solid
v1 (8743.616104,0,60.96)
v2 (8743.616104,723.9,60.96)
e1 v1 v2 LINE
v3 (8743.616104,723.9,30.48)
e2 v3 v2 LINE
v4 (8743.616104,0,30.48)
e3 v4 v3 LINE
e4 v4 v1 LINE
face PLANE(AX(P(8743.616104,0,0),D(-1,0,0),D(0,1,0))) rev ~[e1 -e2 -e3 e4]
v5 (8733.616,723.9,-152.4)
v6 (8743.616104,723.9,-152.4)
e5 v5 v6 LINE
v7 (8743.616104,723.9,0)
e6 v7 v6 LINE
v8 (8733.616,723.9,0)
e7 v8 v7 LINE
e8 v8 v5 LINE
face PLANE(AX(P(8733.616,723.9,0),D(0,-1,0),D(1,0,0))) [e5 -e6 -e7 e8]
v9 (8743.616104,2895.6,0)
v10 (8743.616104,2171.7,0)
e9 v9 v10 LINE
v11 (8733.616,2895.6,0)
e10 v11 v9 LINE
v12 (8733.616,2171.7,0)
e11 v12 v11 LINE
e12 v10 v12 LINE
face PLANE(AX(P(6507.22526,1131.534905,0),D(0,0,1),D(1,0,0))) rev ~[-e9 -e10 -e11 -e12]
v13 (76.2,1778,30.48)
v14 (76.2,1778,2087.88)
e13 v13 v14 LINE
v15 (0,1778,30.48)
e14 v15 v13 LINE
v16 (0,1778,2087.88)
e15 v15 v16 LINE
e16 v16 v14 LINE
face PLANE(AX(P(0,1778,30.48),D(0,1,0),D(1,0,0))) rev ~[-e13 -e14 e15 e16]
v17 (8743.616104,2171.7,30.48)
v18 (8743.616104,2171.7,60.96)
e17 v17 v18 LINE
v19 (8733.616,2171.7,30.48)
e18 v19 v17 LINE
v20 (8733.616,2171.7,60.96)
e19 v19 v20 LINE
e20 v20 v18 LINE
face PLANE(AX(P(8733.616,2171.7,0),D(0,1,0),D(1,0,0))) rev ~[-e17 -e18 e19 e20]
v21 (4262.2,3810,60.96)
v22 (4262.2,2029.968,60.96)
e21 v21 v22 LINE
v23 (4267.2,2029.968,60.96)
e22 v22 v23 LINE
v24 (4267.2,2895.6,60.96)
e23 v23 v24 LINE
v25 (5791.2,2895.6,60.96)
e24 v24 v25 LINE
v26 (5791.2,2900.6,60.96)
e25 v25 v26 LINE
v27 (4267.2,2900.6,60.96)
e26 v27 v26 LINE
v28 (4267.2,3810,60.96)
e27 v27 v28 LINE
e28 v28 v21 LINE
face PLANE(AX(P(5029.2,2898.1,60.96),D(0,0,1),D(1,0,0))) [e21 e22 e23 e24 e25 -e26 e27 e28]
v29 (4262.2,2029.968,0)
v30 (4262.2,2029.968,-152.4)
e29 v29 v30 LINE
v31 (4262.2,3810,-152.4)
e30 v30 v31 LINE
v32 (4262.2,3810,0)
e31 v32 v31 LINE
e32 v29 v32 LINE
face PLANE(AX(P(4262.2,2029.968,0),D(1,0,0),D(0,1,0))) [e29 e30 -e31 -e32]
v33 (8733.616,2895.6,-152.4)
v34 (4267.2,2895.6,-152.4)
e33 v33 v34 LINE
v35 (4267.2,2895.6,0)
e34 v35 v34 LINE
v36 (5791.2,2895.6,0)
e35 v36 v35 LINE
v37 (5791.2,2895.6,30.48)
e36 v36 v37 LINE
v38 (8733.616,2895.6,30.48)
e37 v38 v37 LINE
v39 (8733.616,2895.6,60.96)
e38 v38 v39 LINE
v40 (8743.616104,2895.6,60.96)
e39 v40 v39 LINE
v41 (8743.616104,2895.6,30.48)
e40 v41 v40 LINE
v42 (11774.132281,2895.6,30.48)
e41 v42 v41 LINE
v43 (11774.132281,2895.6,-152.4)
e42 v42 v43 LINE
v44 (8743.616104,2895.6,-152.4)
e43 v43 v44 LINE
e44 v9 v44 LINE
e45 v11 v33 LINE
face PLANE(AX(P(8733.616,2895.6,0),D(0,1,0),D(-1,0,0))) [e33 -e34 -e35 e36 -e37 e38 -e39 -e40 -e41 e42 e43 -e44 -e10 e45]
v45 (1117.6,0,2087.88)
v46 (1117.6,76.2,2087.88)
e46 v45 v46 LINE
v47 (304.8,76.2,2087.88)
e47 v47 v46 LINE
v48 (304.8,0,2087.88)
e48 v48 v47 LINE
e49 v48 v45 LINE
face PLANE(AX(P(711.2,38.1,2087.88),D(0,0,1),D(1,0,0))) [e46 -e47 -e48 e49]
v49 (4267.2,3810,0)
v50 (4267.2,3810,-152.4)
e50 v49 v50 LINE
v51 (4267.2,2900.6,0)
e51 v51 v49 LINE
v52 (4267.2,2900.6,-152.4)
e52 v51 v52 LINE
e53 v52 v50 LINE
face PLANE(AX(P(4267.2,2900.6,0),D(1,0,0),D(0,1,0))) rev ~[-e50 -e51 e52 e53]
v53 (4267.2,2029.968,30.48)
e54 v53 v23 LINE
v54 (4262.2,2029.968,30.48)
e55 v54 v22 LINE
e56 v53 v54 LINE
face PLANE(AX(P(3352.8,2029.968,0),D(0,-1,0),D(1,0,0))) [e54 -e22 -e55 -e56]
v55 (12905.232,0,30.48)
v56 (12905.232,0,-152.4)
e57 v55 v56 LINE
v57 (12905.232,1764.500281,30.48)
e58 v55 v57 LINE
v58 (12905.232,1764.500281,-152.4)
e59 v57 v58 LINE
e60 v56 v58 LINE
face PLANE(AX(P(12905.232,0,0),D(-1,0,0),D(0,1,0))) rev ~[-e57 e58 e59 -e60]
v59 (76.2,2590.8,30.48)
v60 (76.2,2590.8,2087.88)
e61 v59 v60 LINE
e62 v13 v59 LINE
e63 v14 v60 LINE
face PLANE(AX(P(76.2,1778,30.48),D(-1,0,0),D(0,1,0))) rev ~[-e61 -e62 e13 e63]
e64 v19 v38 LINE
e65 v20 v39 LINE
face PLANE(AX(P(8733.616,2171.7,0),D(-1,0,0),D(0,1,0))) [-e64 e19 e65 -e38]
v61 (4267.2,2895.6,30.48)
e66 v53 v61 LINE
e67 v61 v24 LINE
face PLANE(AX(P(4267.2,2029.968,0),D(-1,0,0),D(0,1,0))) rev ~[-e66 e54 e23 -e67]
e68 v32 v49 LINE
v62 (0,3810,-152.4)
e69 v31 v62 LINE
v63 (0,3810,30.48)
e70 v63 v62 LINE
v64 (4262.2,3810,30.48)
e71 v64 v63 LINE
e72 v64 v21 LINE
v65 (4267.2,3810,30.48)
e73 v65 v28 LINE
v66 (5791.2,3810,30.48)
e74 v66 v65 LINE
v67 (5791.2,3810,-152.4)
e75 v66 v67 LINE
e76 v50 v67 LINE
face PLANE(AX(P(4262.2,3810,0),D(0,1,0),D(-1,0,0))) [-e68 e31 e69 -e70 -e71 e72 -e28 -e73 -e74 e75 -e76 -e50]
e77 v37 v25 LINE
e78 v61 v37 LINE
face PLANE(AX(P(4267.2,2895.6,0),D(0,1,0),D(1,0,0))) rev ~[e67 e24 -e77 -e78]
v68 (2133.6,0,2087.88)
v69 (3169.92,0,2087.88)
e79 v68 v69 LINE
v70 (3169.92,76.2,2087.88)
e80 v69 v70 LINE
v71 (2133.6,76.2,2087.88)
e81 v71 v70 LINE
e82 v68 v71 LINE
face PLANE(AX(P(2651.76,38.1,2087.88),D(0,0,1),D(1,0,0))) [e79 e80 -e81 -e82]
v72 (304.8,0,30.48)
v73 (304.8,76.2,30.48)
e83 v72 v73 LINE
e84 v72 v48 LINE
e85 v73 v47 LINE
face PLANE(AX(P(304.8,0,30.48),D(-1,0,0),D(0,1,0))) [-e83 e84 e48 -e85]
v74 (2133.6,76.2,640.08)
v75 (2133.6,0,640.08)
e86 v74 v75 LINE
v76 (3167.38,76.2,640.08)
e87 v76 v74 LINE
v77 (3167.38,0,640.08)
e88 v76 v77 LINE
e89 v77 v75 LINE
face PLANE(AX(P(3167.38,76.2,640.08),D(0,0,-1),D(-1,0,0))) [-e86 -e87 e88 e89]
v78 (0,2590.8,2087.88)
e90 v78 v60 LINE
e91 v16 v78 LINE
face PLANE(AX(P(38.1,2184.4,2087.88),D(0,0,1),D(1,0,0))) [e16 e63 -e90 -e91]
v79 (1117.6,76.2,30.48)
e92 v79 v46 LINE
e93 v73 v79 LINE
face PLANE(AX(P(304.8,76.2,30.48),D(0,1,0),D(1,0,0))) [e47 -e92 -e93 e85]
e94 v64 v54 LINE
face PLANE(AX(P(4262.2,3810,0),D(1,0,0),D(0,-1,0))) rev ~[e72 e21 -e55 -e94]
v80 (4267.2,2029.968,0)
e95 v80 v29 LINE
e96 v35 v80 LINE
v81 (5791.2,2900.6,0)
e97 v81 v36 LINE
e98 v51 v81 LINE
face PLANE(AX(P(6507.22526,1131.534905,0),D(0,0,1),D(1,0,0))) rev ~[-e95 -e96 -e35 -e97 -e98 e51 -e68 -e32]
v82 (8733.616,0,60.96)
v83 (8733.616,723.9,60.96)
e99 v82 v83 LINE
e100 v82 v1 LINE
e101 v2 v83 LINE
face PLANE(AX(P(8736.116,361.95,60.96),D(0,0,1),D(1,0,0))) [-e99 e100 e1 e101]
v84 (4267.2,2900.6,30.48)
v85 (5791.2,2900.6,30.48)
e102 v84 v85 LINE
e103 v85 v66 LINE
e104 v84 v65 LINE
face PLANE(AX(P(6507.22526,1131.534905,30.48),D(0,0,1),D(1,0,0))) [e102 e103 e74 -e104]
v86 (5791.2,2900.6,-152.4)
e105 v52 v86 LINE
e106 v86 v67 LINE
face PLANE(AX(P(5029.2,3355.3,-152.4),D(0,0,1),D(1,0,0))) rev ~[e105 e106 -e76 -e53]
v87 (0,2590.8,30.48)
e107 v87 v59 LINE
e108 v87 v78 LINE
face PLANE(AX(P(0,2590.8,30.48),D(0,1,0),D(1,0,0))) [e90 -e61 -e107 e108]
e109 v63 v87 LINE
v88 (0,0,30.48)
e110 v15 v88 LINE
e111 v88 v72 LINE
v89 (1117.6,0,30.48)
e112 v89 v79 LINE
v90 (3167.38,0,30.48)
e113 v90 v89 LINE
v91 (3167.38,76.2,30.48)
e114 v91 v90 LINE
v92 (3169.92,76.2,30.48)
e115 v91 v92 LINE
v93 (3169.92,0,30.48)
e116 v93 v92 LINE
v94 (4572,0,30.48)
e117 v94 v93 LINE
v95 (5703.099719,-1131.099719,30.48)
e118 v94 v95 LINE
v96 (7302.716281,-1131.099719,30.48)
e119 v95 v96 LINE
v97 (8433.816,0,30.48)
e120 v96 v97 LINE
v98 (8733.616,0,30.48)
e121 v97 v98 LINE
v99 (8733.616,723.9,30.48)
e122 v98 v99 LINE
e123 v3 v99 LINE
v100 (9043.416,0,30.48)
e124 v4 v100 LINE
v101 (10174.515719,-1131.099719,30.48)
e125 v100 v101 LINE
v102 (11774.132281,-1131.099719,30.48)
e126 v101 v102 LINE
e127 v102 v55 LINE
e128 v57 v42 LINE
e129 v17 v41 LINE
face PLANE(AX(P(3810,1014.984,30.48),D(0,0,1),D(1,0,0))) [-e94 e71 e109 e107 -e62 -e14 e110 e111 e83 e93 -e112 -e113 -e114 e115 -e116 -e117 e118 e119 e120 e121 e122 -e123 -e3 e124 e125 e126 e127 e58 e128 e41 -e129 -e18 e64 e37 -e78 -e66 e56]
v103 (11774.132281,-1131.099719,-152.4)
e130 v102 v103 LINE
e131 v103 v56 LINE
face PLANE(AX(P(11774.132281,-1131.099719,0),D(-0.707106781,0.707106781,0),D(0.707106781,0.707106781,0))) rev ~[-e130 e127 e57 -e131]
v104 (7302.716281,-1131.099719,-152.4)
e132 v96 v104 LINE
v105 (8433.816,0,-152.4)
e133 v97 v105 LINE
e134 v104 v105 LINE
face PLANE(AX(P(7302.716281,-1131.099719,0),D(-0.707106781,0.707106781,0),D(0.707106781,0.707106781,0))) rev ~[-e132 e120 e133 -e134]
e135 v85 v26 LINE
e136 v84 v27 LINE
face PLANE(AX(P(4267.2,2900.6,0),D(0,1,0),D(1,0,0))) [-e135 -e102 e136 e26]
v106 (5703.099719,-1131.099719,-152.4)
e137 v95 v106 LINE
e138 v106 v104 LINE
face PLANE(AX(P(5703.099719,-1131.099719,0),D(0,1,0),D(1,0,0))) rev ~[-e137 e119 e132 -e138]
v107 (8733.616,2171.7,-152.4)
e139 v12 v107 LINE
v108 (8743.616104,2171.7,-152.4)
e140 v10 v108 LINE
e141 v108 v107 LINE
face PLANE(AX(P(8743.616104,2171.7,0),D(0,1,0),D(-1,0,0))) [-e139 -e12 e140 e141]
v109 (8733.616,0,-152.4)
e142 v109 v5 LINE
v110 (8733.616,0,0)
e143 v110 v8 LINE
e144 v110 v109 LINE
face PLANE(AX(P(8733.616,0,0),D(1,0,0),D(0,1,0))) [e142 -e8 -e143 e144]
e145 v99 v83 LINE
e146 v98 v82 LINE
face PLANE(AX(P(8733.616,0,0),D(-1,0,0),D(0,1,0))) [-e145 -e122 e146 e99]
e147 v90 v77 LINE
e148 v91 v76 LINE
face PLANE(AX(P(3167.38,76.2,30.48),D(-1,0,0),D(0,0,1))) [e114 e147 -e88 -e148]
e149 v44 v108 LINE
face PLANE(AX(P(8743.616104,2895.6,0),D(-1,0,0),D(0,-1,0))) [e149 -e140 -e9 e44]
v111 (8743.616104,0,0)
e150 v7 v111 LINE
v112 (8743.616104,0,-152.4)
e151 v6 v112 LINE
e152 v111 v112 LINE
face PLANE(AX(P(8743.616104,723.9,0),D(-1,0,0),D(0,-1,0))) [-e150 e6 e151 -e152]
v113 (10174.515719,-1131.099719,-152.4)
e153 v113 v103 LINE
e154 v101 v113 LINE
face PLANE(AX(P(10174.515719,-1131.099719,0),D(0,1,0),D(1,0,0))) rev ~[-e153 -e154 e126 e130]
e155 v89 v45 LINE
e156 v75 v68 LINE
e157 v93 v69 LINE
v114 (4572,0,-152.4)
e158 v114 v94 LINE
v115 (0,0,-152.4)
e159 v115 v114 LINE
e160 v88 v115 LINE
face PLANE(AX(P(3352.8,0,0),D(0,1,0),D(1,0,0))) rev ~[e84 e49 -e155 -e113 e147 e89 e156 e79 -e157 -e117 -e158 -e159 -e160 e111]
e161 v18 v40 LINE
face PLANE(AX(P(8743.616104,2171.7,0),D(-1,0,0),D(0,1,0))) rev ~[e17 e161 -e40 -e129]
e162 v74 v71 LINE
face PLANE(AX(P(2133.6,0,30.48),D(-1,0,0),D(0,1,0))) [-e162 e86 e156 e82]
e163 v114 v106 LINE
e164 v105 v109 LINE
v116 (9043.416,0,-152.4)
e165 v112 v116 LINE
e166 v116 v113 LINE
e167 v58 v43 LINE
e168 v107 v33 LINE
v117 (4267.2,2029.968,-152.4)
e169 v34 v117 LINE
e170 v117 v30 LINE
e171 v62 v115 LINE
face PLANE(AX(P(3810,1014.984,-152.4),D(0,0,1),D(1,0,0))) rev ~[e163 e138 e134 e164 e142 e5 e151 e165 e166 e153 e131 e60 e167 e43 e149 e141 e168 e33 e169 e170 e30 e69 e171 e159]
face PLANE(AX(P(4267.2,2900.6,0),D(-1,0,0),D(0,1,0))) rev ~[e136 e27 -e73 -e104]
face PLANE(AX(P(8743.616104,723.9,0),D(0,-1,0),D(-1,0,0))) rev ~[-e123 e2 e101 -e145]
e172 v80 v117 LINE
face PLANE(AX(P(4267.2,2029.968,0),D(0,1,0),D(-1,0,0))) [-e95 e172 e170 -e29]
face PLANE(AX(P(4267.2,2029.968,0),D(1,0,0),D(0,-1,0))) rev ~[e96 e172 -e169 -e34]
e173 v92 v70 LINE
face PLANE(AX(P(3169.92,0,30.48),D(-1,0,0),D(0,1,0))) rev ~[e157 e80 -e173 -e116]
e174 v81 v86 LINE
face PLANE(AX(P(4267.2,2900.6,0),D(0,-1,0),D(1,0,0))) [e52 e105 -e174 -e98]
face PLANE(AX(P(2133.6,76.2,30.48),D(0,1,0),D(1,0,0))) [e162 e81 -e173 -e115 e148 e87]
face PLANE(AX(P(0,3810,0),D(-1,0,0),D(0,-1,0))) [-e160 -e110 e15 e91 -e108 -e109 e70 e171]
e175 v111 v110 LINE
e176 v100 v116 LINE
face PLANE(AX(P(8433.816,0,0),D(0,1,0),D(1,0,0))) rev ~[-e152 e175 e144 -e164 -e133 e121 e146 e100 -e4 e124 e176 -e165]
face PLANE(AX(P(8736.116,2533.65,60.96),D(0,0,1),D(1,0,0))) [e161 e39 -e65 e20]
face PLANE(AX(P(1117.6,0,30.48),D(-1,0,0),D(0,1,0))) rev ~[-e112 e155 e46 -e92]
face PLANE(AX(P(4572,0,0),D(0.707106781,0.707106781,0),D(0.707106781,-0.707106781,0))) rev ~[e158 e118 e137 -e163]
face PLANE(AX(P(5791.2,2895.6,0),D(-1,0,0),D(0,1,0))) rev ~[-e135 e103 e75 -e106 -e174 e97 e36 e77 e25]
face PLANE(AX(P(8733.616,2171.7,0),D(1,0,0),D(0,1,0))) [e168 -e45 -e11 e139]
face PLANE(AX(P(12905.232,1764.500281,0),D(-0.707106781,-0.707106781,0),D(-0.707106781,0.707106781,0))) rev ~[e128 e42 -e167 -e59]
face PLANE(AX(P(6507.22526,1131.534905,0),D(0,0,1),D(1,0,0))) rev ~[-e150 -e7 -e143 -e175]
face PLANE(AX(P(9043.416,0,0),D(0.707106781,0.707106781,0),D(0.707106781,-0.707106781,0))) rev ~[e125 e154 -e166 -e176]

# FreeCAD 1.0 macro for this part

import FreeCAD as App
import Part
import Sketcher

V = App.Vector
Q = App.Units.Quantity


def add_polygon(sketch, points):
    """Adds a closed chain of lines whose ends are joined by coincident constraints."""
    first, n = sketch.GeometryCount, len(points)
    for a, b in zip(points, points[1:] + points[:1]):
        sketch.addGeometry(Part.LineSegment(App.Vector(*a, 0), App.Vector(*b, 0)), False)
    for i in range(n):
        sketch.addConstraint(Sketcher.Constraint("Coincident", first + i, 2, first + (i + 1) % n, 1))

doc = App.newDocument("Part")
params = doc.addObject("Spreadsheet::Sheet", "Params")
for row, (alias, value) in enumerate([
    ("sketch1_width", "60 in"),
    ("sketch1_height", "70.08 in"),
    ("pad1_length", "2.4 in"),
    ("sketch2_height", "28.5 in"),
    ("pad2_length", "2.4 in"),
    ("sketch3_height", "28.5 in"),
    ("pad3_length", "2.4 in"),
    ("sketch4_width", "12 in"),
    ("sketch4_width2", "24 in"),
    ("sketch4_width3", "228 in"),
    ("sketch4_width4", "132 in"),
    ("sketch4_width5", "36 in"),
    ("pad4_length", "1.2 in"),
    ("sketch5_width", "3 in"),
    ("sketch5_width2", "32 in"),
    ("sketch5_width3", "40.8 in"),
    ("pad5_length", "81 in"),
    ("sketch6_height", "24 in"),
    ("sketch6_width", "40.7 in"),
    ("sketch7_width", "132 in"),
    ("sketch7_width2", "12 in"),
    ("sketch7_width3", "60 in"),
    ("sketch7_height", "150 in"),
    ("sketch7_height2", "114 in"),
    ("pad6_length", "6 in"),
    ("sketch8_width", "36 in"),
    ("sketch8_height", "79.92 in"),
    ("pad7_length", "6 in"),
    ("pad7_length2", "1.2 in"),
], start=1):
    params.set(f"A{row}", alias)
    params.set(f"B{row}", "=" + value)
    params.setAlias(f"B{row}", alias)

body = doc.addObject("PartDesign::Body", "Body")

# Sketch on XY plane
sketch1 = body.newObject("Sketcher::SketchObject", "Sketch")
sketch1.AttachmentSupport = (doc.getObject("XY_Plane"), [""])
sketch1.MapMode = "FlatFace"
add_polygon(sketch1, [(4267, 2896), (5791, 2896), (5791, 2901), (4267, 2901), (4267, 3810), (4262, 3810), (4262, 2030), (4267, 2030)])  # lines 0-7
sketch1.addConstraint(Sketcher.Constraint("Horizontal", 0))
sketch1.addConstraint(Sketcher.Constraint("Vertical", 1))
sketch1.addConstraint(Sketcher.Constraint("Horizontal", 2))
sketch1.addConstraint(Sketcher.Constraint("Vertical", 3))
sketch1.addConstraint(Sketcher.Constraint("Horizontal", 4))
sketch1.addConstraint(Sketcher.Constraint("Vertical", 5))
sketch1.addConstraint(Sketcher.Constraint("Horizontal", 6))
sketch1.addConstraint(Sketcher.Constraint("Vertical", 7))
sketch1.addConstraint(Sketcher.Constraint("Vertical", 3, 2, 6, 2))
sketch1.addConstraint(Sketcher.Constraint("Equal", 6, 1))
sketch1.addConstraint(Sketcher.Constraint("DistanceX", 0, 1, 0, 2, Q("60 in")))
sketch1.addConstraint(Sketcher.Constraint("DistanceX", -1, 1, 0, 2, Q("228 in")))
sketch1.addConstraint(Sketcher.Constraint("DistanceY", -1, 1, 0, 2, Q("114 in")))
sketch1.addConstraint(Sketcher.Constraint("DistanceY", -1, 1, 3, 2, Q("150 in")))
sketch1.addConstraint(Sketcher.Constraint("DistanceY", 5, 2, 5, 1, Q("70.08 in")))
sketch1.addConstraint(Sketcher.Constraint("DistanceX", 4, 2, 4, 1, 5.0))
sketch1.setExpression("Constraints[18]", "Params.sketch1_width")
sketch1.setExpression("Constraints[22]", "Params.sketch1_height")
pad1 = body.newObject("PartDesign::Pad", "Pad")
pad1.Profile = sketch1
pad1.setExpression("Length", "Params.pad1_length")
body2 = doc.addObject("PartDesign::Body", "Body001")

# Sketch on XY plane
sketch2 = body2.newObject("Sketcher::SketchObject", "Sketch001")
sketch2.AttachmentSupport = (doc.getObject("XY_Plane001"), [""])
sketch2.MapMode = "FlatFace"
add_polygon(sketch2, [(8734, 2896), (8734, 2172), (8744, 2172), (8744, 2896)])  # lines 0-3
sketch2.addConstraint(Sketcher.Constraint("Vertical", 0))
sketch2.addConstraint(Sketcher.Constraint("Horizontal", 1))
sketch2.addConstraint(Sketcher.Constraint("Vertical", 2))
sketch2.addConstraint(Sketcher.Constraint("Horizontal", 3))
sketch2.addConstraint(Sketcher.Constraint("DistanceY", 0, 2, 0, 1, Q("28.5 in")))
sketch2.addConstraint(Sketcher.Constraint("DistanceY", -1, 1, 2, 2, Q("114 in")))
sketch2.addConstraint(Sketcher.Constraint("DistanceX", -1, 1, 0, 2, 8733.616))
sketch2.addConstraint(Sketcher.Constraint("DistanceX", 1, 1, 1, 2, 10.000104))
sketch2.setExpression("Constraints[8]", "Params.sketch2_height")
pad2 = body2.newObject("PartDesign::Pad", "Pad001")
pad2.Profile = sketch2
pad2.setExpression("Length", "Params.pad2_length")
body3 = doc.addObject("PartDesign::Body", "Body002")

# Sketch on XY plane
sketch3 = body3.newObject("Sketcher::SketchObject", "Sketch002")
sketch3.AttachmentSupport = (doc.getObject("XY_Plane002"), [""])
sketch3.MapMode = "FlatFace"
add_polygon(sketch3, [(8734, 724), (8734, 0), (8744, 0), (8744, 724)])  # lines 0-3
sketch3.addConstraint(Sketcher.Constraint("Vertical", 0))
sketch3.addConstraint(Sketcher.Constraint("Horizontal", 1))
sketch3.addConstraint(Sketcher.Constraint("Vertical", 2))
sketch3.addConstraint(Sketcher.Constraint("Horizontal", 3))
sketch3.addConstraint(Sketcher.Constraint("PointOnObject", 0, 2, -1))
sketch3.addConstraint(Sketcher.Constraint("DistanceY", 0, 2, 0, 1, Q("28.5 in")))
sketch3.addConstraint(Sketcher.Constraint("DistanceX", -1, 1, 0, 2, 8733.616))
sketch3.addConstraint(Sketcher.Constraint("DistanceX", 1, 1, 1, 2, 10.000104))
sketch3.setExpression("Constraints[9]", "Params.sketch3_height")
pad3 = body3.newObject("PartDesign::Pad", "Pad002")
pad3.Profile = sketch3
pad3.setExpression("Length", "Params.pad3_length")
body4 = doc.addObject("PartDesign::Body", "Body003")

# Sketch on XY plane
sketch4 = body4.newObject("Sketcher::SketchObject", "Sketch003")
sketch4.AttachmentSupport = (doc.getObject("XY_Plane003"), [""])
sketch4.MapMode = "FlatFace"
add_polygon(sketch4, [(4267, 0), (4572, 0), (5703, -1131), (7303, -1131), (8434, 0), (9043, 0), (10175, -1131), (11774, -1131), (12905, 0), (12905, 1765), (11774, 2896), (5791, 2896), (5791, 3810), (0, 3810), (0, 0), (3353, 0), (3353, 2030), (4267, 2030)])  # lines 0-17
sketch4.addConstraint(Sketcher.Constraint("Horizontal", 0))
sketch4.addConstraint(Sketcher.Constraint("Horizontal", 2))
sketch4.addConstraint(Sketcher.Constraint("Horizontal", 4))
sketch4.addConstraint(Sketcher.Constraint("Horizontal", 6))
sketch4.addConstraint(Sketcher.Constraint("Vertical", 8))
sketch4.addConstraint(Sketcher.Constraint("Horizontal", 10))
sketch4.addConstraint(Sketcher.Constraint("Vertical", 11))
sketch4.addConstraint(Sketcher.Constraint("Horizontal", 12))
sketch4.addConstraint(Sketcher.Constraint("Vertical", 13))
sketch4.addConstraint(Sketcher.Constraint("Horizontal", 14))
sketch4.addConstraint(Sketcher.Constraint("Vertical", 15))
sketch4.addConstraint(Sketcher.Constraint("Horizontal", 16))
sketch4.addConstraint(Sketcher.Constraint("Vertical", 17))
sketch4.addConstraint(Sketcher.Constraint("Coincident", 13, 2, -1, 1))
sketch4.addConstraint(Sketcher.Constraint("PointOnObject", 0, 2, -1))
sketch4.addConstraint(Sketcher.Constraint("PointOnObject", 3, 2, -1))
sketch4.addConstraint(Sketcher.Constraint("PointOnObject", 7, 2, -1))
sketch4.addConstraint(Sketcher.Constraint("Perpendicular", 1, 3))
sketch4.addConstraint(Sketcher.Constraint("Perpendicular", 3, 5))
sketch4.addConstraint(Sketcher.Constraint("Perpendicular", 5, 7))
sketch4.addConstraint(Sketcher.Constraint("Perpendicular", 7, 9))
sketch4.addConstraint(Sketcher.Constraint("Horizontal", 2, 2, 5, 2))
sketch4.addConstraint(Sketcher.Constraint("Vertical", 6, 2, 9, 2))
sketch4.addConstraint(Sketcher.Constraint("Equal", 2, 6))
sketch4.addConstraint(Sketcher.Constraint("Equal", 16, 11))
sketch4.addConstraint(Sketcher.Constraint("Equal", 1, 3))
sketch4.addConstraint(Sketcher.Constraint("DistanceX", 0, 1, 0, 2, Q("12 in")))
sketch4.addConstraint(Sketcher.Constraint("DistanceX", 4, 1, 4, 2, Q("24 in")))
sketch4.addConstraint(Sketcher.Constraint("DistanceX", 12, 2, 12, 1, Q("228 in")))
sketch4.addConstraint(Sketcher.Constraint("DistanceX", 14, 1, 14, 2, Q("132 in")))
sketch4.addConstraint(Sketcher.Constraint("DistanceX", 16, 1, 16, 2, Q("36 in")))
sketch4.addConstraint(Sketcher.Constraint("DistanceY", 13, 2, 13, 1, Q("150 in")))
sketch4.addConstraint(Sketcher.Constraint("DistanceY", 15, 1, 15, 2, Q("79.92 in")))
sketch4.addConstraint(Sketcher.Constraint("DistanceX", -1, 1, 3, 2, Q("332.04 in")))
sketch4.addConstraint(Sketcher.Constraint("DistanceX", 10, 2, 10, 1, 5982.932281))
sketch4.setExpression("Constraints[44]", "Params.sketch4_width")
sketch4.setExpression("Constraints[45]", "Params.sketch4_width2")
sketch4.setExpression("Constraints[46]", "Params.sketch4_width3")
sketch4.setExpression("Constraints[47]", "Params.sketch4_width4")
sketch4.setExpression("Constraints[48]", "Params.sketch4_width5")
pad4 = body4.newObject("PartDesign::Pad", "Pad003")
pad4.Profile = sketch4
pad4.setExpression("Length", "Params.pad4_length")
body.AllowCompound = True
doc.recompute()

boolean = body.newObject("PartDesign::Boolean", "Boolean")
boolean.Type = "Fuse"
boolean.addObjects([body2])
doc.recompute()

boolean2 = body.newObject("PartDesign::Boolean", "Boolean001")
boolean2.Type = "Fuse"
boolean2.addObjects([body3])
doc.recompute()

boolean3 = body.newObject("PartDesign::Boolean", "Boolean002")
boolean3.Type = "Fuse"
boolean3.addObjects([body4])

# Sketch on XY plane
sketch5 = body.newObject("Sketcher::SketchObject", "Sketch004")
sketch5.AttachmentSupport = (doc.getObject("XY_Plane"), [""])
sketch5.MapMode = "FlatFace"
sketch5.AttachmentOffset = App.Placement(V(0, 0, 1.2 * 25.4), App.Rotation())
add_polygon(sketch5, [(0, 2591), (0, 1778), (76, 1778), (76, 2591)])  # lines 0-3
add_polygon(sketch5, [(305, 76), (305, 0), (1118, 0), (1118, 76)])  # lines 4-7
add_polygon(sketch5, [(2134, 76), (2134, 0), (3170, 0), (3170, 76)])  # lines 8-11
sketch5.addConstraint(Sketcher.Constraint("Vertical", 0))
sketch5.addConstraint(Sketcher.Constraint("Horizontal", 1))
sketch5.addConstraint(Sketcher.Constraint("Vertical", 2))
sketch5.addConstraint(Sketcher.Constraint("Horizontal", 3))
sketch5.addConstraint(Sketcher.Constraint("Vertical", 4))
sketch5.addConstraint(Sketcher.Constraint("Horizontal", 5))
sketch5.addConstraint(Sketcher.Constraint("Vertical", 6))
sketch5.addConstraint(Sketcher.Constraint("Horizontal", 7))
sketch5.addConstraint(Sketcher.Constraint("Vertical", 8))
sketch5.addConstraint(Sketcher.Constraint("Horizontal", 9))
sketch5.addConstraint(Sketcher.Constraint("Vertical", 10))
sketch5.addConstraint(Sketcher.Constraint("Horizontal", 11))
sketch5.addConstraint(Sketcher.Constraint("PointOnObject", 0, 2, -2))
sketch5.addConstraint(Sketcher.Constraint("PointOnObject", 4, 2, -1))
sketch5.addConstraint(Sketcher.Constraint("PointOnObject", 8, 2, -1))
sketch5.addConstraint(Sketcher.Constraint("Horizontal", 7, 2, 10, 2))
sketch5.addConstraint(Sketcher.Constraint("Equal", 7, 0))
sketch5.addConstraint(Sketcher.Constraint("Equal", 3, 4))
sketch5.addConstraint(Sketcher.Constraint("DistanceX", 1, 1, 1, 2, Q("3 in")))
sketch5.addConstraint(Sketcher.Constraint("DistanceX", 5, 1, 5, 2, Q("32 in")))
sketch5.addConstraint(Sketcher.Constraint("DistanceX", 9, 1, 9, 2, Q("40.8 in")))
sketch5.addConstraint(Sketcher.Constraint("DistanceY", -1, 1, 0, 2, Q("70 in")))
sketch5.addConstraint(Sketcher.Constraint("DistanceX", -1, 1, 4, 2, Q("12 in")))
sketch5.addConstraint(Sketcher.Constraint("DistanceX", -1, 1, 8, 2, Q("84 in")))
sketch5.setExpression("Constraints[30]", "Params.sketch5_width")
sketch5.setExpression("Constraints[31]", "Params.sketch5_width2")
sketch5.setExpression("Constraints[32]", "Params.sketch5_width3")
pad5 = body.newObject("PartDesign::Pad", "Pad004")
pad5.Profile = sketch5
pad5.setExpression("Length", "Params.pad5_length")

# Sketch on XZ plane
sketch6 = body.newObject("Sketcher::SketchObject", "Sketch005")
sketch6.AttachmentSupport = (doc.getObject("XZ_Plane"), [""])
sketch6.MapMode = "FlatFace"
sketch6.AttachmentOffset = App.Placement(V(0, 0, -3 * 25.4), App.Rotation())
add_polygon(sketch6, [(3167, 640), (3167, 30), (2134, 30), (2134, 640)])  # lines 0-3
sketch6.addConstraint(Sketcher.Constraint("Vertical", 0))
sketch6.addConstraint(Sketcher.Constraint("Horizontal", 1))
sketch6.addConstraint(Sketcher.Constraint("Vertical", 2))
sketch6.addConstraint(Sketcher.Constraint("Horizontal", 3))
sketch6.addConstraint(Sketcher.Constraint("DistanceY", 0, 2, 0, 1, Q("24 in")))
sketch6.addConstraint(Sketcher.Constraint("DistanceX", 1, 2, 1, 1, Q("40.7 in")))
sketch6.addConstraint(Sketcher.Constraint("DistanceX", -1, 1, 1, 2, Q("84 in")))
sketch6.addConstraint(Sketcher.Constraint("DistanceY", -1, 1, 0, 2, Q("1.2 in")))
sketch6.setExpression("Constraints[8]", "Params.sketch6_height")
sketch6.setExpression("Constraints[9]", "Params.sketch6_width")
pocket1 = body.newObject("PartDesign::Pocket", "Pocket")
pocket1.Profile = sketch6
pocket1.Type = "ThroughAll"
pocket1.Reversed = True

# Sketch on XY plane
sketch7 = body.newObject("Sketcher::SketchObject", "Sketch006")
sketch7.AttachmentSupport = (doc.getObject("XY_Plane"), [""])
sketch7.MapMode = "FlatFace"
add_polygon(sketch7, [(0, 0), (3353, 0), (3353, 2030), (4262, 2030), (4262, 3810), (0, 3810)])  # lines 0-5
add_polygon(sketch7, [(4267, 0), (4572, 0), (5703, -1131), (7303, -1131), (8434, 0), (8734, 0), (8734, 724), (8744, 724), (8744, 0), (9043, 0), (10175, -1131), (11774, -1131), (12905, 0), (12905, 1765), (11774, 2896), (8744, 2896), (8744, 2172), (8734, 2172), (8734, 2896), (4267, 2896)])  # lines 6-25
add_polygon(sketch7, [(4267, 3810), (4267, 2901), (5791, 2901), (5791, 3810)])  # lines 26-29
sketch7.addConstraint(Sketcher.Constraint("Horizontal", 0))
sketch7.addConstraint(Sketcher.Constraint("Vertical", 1))
sketch7.addConstraint(Sketcher.Constraint("Horizontal", 2))
sketch7.addConstraint(Sketcher.Constraint("Vertical", 3))
sketch7.addConstraint(Sketcher.Constraint("Horizontal", 4))
sketch7.addConstraint(Sketcher.Constraint("Vertical", 5))
sketch7.addConstraint(Sketcher.Constraint("Horizontal", 6))
sketch7.addConstraint(Sketcher.Constraint("Horizontal", 8))
sketch7.addConstraint(Sketcher.Constraint("Horizontal", 10))
sketch7.addConstraint(Sketcher.Constraint("Vertical", 11))
sketch7.addConstraint(Sketcher.Constraint("Horizontal", 12))
sketch7.addConstraint(Sketcher.Constraint("Vertical", 13))
sketch7.addConstraint(Sketcher.Constraint("Horizontal", 14))
sketch7.addConstraint(Sketcher.Constraint("Horizontal", 16))
sketch7.addConstraint(Sketcher.Constraint("Vertical", 18))
sketch7.addConstraint(Sketcher.Constraint("Horizontal", 20))
sketch7.addConstraint(Sketcher.Constraint("Vertical", 21))
sketch7.addConstraint(Sketcher.Constraint("Horizontal", 22))
sketch7.addConstraint(Sketcher.Constraint("Vertical", 23))
sketch7.addConstraint(Sketcher.Constraint("Horizontal", 24))
sketch7.addConstraint(Sketcher.Constraint("Vertical", 25))
sketch7.addConstraint(Sketcher.Constraint("Vertical", 26))
sketch7.addConstraint(Sketcher.Constraint("Horizontal", 27))
sketch7.addConstraint(Sketcher.Constraint("Vertical", 28))
sketch7.addConstraint(Sketcher.Constraint("Horizontal", 29))
sketch7.addConstraint(Sketcher.Constraint("Coincident", 5, 2, -1, 1))
sketch7.addConstraint(Sketcher.Constraint("PointOnObject", 6, 2, -1))
sketch7.addConstraint(Sketcher.Constraint("PointOnObject", 9, 2, -1))
sketch7.addConstraint(Sketcher.Constraint("PointOnObject", 13, 2, -1))
sketch7.addConstraint(Sketcher.Constraint("PointOnObject", 17, 2, -1))
sketch7.addConstraint(Sketcher.Constraint("Perpendicular", 7, 9))
sketch7.addConstraint(Sketcher.Constraint("Perpendicular", 9, 15))
sketch7.addConstraint(Sketcher.Constraint("Perpendicular", 15, 17))
sketch7.addConstraint(Sketcher.Constraint("Perpendicular", 17, 19))
sketch7.addConstraint(Sketcher.Constraint("Horizontal", 8, 2, 15, 2))
sketch7.addConstraint(Sketcher.Constraint("Horizontal", 20, 2, 23, 2))
sketch7.addConstraint(Sketcher.Constraint("Horizontal", 4, 2, 28, 2))
sketch7.addConstraint(Sketcher.Constraint("Vertical", 16, 2, 19, 2))
sketch7.addConstraint(Sketcher.Constraint("Vertical", 13, 2, 20, 2))
sketch7.addConstraint(Sketcher.Constraint("Vertical", 11, 2, 22, 2))
sketch7.addConstraint(Sketcher.Constraint("Vertical", 25, 2, 26, 2))
sketch7.addConstraint(Sketcher.Constraint("Equal", 8, 16))
sketch7.addConstraint(Sketcher.Constraint("Equal", 13, 21))
sketch7.addConstraint(Sketcher.Constraint("Equal", 2, 26))
sketch7.addConstraint(Sketcher.Constraint("Equal", 7, 9))
sketch7.addConstraint(Sketcher.Constraint("DistanceX", 0, 1, 0, 2, Q("132 in")))
sketch7.addConstraint(Sketcher.Constraint("DistanceX", 6, 1, 6, 2, Q("12 in")))
sketch7.addConstraint(Sketcher.Constraint("DistanceX", 27, 1, 27, 2, Q("60 in")))
sketch7.addConstraint(Sketcher.Constraint("DistanceY", 5, 2, 5, 1, Q("150 in")))
sketch7.addConstraint(Sketcher.Constraint("DistanceY", 25, 2, 25, 1, Q("114 in")))
sketch7.addConstraint(Sketcher.Constraint("DistanceY", 11, 1, 11, 2, Q("28.5 in")))
sketch7.addConstraint(Sketcher.Constraint("DistanceX", -1, 1, 6, 2, Q("180 in")))
sketch7.addConstraint(Sketcher.Constraint("DistanceX", 9, 2, 14, 2, Q("24 in")))
sketch7.addConstraint(Sketcher.Constraint("DistanceY", 1, 1, 1, 2, Q("79.92 in")))
sketch7.addConstraint(Sketcher.Constraint("DistanceX", -1, 1, 9, 2, Q("332.04 in")))
sketch7.addConstraint(Sketcher.Constraint("DistanceX", 2, 2, 10, 2, Q("176.04 in")))
sketch7.addConstraint(Sketcher.Constraint("DistanceX", 2, 1, 2, 2, 909.4))
sketch7.addConstraint(Sketcher.Constraint("DistanceY", 18, 1, 18, 2, 1764.500281))
sketch7.addConstraint(Sketcher.Constraint("DistanceX", 12, 1, 12, 2, 10.000104))
sketch7.setExpression("Constraints[75]", "Params.sketch7_width")
sketch7.setExpression("Constraints[76]", "Params.sketch7_width2")
sketch7.setExpression("Constraints[77]", "Params.sketch7_width3")
sketch7.setExpression("Constraints[78]", "Params.sketch7_height")
sketch7.setExpression("Constraints[79]", "Params.sketch7_height2")
pad6 = body.newObject("PartDesign::Pad", "Pad005")
pad6.Profile = sketch7
pad6.setExpression("Length", "Params.pad6_length")
pad6.Reversed = True

# Sketch on XY plane
sketch8 = body.newObject("Sketcher::SketchObject", "Sketch007")
sketch8.AttachmentSupport = (doc.getObject("XY_Plane"), [""])
sketch8.MapMode = "FlatFace"
add_polygon(sketch8, [(3353, 2030), (3353, 0), (4267, 0), (4267, 2030)])  # lines 0-3
sketch8.addConstraint(Sketcher.Constraint("Vertical", 0))
sketch8.addConstraint(Sketcher.Constraint("Horizontal", 1))
sketch8.addConstraint(Sketcher.Constraint("Vertical", 2))
sketch8.addConstraint(Sketcher.Constraint("Horizontal", 3))
sketch8.addConstraint(Sketcher.Constraint("PointOnObject", 0, 2, -1))
sketch8.addConstraint(Sketcher.Constraint("DistanceX", 1, 1, 1, 2, Q("36 in")))
sketch8.addConstraint(Sketcher.Constraint("DistanceX", -1, 1, 0, 2, Q("132 in")))
sketch8.addConstraint(Sketcher.Constraint("DistanceY", 0, 2, 0, 1, Q("79.92 in")))
sketch8.setExpression("Constraints[9]", "Params.sketch8_width")
sketch8.setExpression("Constraints[11]", "Params.sketch8_height")
pad7 = body.newObject("PartDesign::Pad", "Pad006")
pad7.Profile = sketch8
pad7.Type = "TwoLengths"
pad7.setExpression("Length", "Params.pad7_length")
pad7.setExpression("Length2", "Params.pad7_length2")
pad7.Reversed = True

doc.recompute()
